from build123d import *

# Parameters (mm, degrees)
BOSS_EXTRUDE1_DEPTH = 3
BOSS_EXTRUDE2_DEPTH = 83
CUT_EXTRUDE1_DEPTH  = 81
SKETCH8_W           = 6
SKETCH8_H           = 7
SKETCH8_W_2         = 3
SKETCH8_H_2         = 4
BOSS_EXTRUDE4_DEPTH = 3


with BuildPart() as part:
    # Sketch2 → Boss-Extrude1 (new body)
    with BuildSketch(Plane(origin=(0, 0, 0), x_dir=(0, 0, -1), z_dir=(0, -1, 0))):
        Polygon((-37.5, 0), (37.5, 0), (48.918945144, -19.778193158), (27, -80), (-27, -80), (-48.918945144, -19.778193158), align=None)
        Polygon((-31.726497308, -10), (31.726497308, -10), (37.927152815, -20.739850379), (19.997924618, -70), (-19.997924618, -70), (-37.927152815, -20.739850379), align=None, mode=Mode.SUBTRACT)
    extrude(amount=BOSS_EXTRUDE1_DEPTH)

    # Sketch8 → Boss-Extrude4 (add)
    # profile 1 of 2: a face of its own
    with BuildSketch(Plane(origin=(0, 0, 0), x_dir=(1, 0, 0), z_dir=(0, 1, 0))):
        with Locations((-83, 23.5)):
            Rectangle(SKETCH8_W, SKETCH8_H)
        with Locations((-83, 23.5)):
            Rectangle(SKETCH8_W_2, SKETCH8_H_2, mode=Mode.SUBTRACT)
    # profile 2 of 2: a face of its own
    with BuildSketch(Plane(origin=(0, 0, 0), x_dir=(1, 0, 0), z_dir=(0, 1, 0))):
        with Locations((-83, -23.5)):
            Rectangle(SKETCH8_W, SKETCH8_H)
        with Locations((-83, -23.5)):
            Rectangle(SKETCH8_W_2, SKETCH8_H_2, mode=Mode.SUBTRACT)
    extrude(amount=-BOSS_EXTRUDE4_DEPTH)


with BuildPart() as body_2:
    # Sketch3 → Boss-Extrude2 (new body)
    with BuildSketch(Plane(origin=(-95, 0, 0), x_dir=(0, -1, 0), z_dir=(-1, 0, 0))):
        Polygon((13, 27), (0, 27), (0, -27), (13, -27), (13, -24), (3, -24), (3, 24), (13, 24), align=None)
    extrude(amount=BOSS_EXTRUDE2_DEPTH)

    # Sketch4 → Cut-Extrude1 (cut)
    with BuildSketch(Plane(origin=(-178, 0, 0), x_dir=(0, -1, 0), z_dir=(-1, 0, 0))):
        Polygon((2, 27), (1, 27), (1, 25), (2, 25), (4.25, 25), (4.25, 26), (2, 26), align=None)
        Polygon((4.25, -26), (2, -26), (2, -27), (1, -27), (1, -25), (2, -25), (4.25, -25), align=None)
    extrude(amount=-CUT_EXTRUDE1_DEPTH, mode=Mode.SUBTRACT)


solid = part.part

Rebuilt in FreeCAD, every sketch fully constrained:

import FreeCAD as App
import Part
import Sketcher
from FreeCAD import Vector
Q = App.Units.Quantity


def add_polygon(sketch, points):
    """Adds a closed chain of lines whose ends are joined by coincident constraints."""
    first, n = sketch.GeometryCount, len(points)
    for a, b in zip(points, points[1:] + points[:1]):
        sketch.addGeometry(Part.LineSegment(App.Vector(*a, 0), App.Vector(*b, 0)), False)
    for i in range(n):
        sketch.addConstraint(Sketcher.Constraint("Coincident", first + i, 2, first + (i + 1) % n, 1))

doc = App.newDocument("Part")
body = doc.addObject("PartDesign::Body", "Body")

# Sketch on XZ plane
sketch1 = body.newObject("Sketcher::SketchObject", "Sketch")
sketch1.AttachmentSupport = (doc.getObject("XZ_Plane"), [""])
sketch1.MapMode = "FlatFace"
add_polygon(sketch1, [(0, -37.5), (0, 37.5), (-19.778193, 48.918945), (-80, 27), (-80, -27), (-19.778193, -48.918945)])  # lines 0-5
add_polygon(sketch1, [(-10, 31.726497), (-10, -31.726497), (-20.73985, -37.927153), (-70, -19.997925), (-70, 19.997925), (-20.73985, 37.927153)])  # lines 6-11
sketch1.addConstraint(Sketcher.Constraint("Vertical", 0))
sketch1.addConstraint(Sketcher.Constraint("Vertical", 3))
sketch1.addConstraint(Sketcher.Constraint("Vertical", 6))
sketch1.addConstraint(Sketcher.Constraint("Vertical", 9))
sketch1.addConstraint(Sketcher.Constraint("Symmetric", 0, 2, 5, 2, -1, 1))
sketch1.addConstraint(Sketcher.Constraint("Symmetric", 1, 2, 4, 2, -1))
sketch1.addConstraint(Sketcher.Constraint("Symmetric", 7, 2, 10, 2, -1))
sketch1.addConstraint(Sketcher.Constraint("Parallel", 5, 7))
sketch1.addConstraint(Sketcher.Constraint("Parallel", 4, 8))
sketch1.addConstraint(Sketcher.Constraint("Parallel", 2, 10))
sketch1.addConstraint(Sketcher.Constraint("Parallel", 1, 11))
sketch1.addConstraint(Sketcher.Constraint("Equal", 2, 4))
sketch1.addConstraint(Sketcher.Constraint("DistanceY", 0, 1, 0, 2, 75.0))
sketch1.addConstraint(Sketcher.Constraint("DistanceY", 3, 2, 3, 1, 54.0))
sketch1.addConstraint(Sketcher.Constraint("Angle", 1, Q("150 deg")))
sketch1.addConstraint(Sketcher.Constraint("Angle", 2, Q("-160 deg")))
sketch1.addConstraint(Sketcher.Constraint("DistanceX", 2, 2, -1, 1, 80.0))
sketch1.addConstraint(Sketcher.Constraint("DistanceX", 6, 2, -1, 1, 10.0))
sketch1.addConstraint(Sketcher.Constraint("DistanceX", 8, 2, -1, 1, 70.0))
sketch1.addConstraint(Sketcher.Constraint("DistanceY", 9, 1, 9, 2, 39.995849))
sketch1.addConstraint(Sketcher.Constraint("Distance", 7, 12.401311))
pad1 = body.newObject("PartDesign::Pad", "Pad")
pad1.Profile = sketch1
pad1.Length = 3

# Sketch on XZ plane
sketch2 = body.newObject("Sketcher::SketchObject", "Sketch001")
sketch2.AttachmentSupport = (doc.getObject("XZ_Plane"), [""])
sketch2.MapMode = "FlatFace"
add_polygon(sketch2, [(-86, -27), (-86, -20), (-80, -20), (-80, -27)])  # lines 0-3
add_polygon(sketch2, [(-81.5, -21.5), (-84.5, -21.5), (-84.5, -25.5), (-81.5, -25.5)])  # lines 4-7
add_polygon(sketch2, [(-86, 20), (-86, 27), (-80, 27), (-80, 20)])  # lines 8-11
add_polygon(sketch2, [(-81.5, 25.5), (-84.5, 25.5), (-84.5, 21.5), (-81.5, 21.5)])  # lines 12-15
sketch2.addConstraint(Sketcher.Constraint("Vertical", 0))
sketch2.addConstraint(Sketcher.Constraint("Horizontal", 1))
sketch2.addConstraint(Sketcher.Constraint("Vertical", 2))
sketch2.addConstraint(Sketcher.Constraint("Horizontal", 3))
sketch2.addConstraint(Sketcher.Constraint("Horizontal", 4))
sketch2.addConstraint(Sketcher.Constraint("Vertical", 5))
sketch2.addConstraint(Sketcher.Constraint("Horizontal", 6))
sketch2.addConstraint(Sketcher.Constraint("Vertical", 7))
sketch2.addConstraint(Sketcher.Constraint("Vertical", 8))
sketch2.addConstraint(Sketcher.Constraint("Horizontal", 9))
sketch2.addConstraint(Sketcher.Constraint("Vertical", 10))
sketch2.addConstraint(Sketcher.Constraint("Horizontal", 11))
sketch2.addConstraint(Sketcher.Constraint("Horizontal", 12))
sketch2.addConstraint(Sketcher.Constraint("Vertical", 13))
sketch2.addConstraint(Sketcher.Constraint("Horizontal", 14))
sketch2.addConstraint(Sketcher.Constraint("Vertical", 15))
sketch2.addConstraint(Sketcher.Constraint("Symmetric", 3, 2, 8, 2, -1))
sketch2.addConstraint(Sketcher.Constraint("Symmetric", 1, 2, 10, 2, -1))
sketch2.addConstraint(Sketcher.Constraint("Symmetric", 5, 2, 12, 2, -1))
sketch2.addConstraint(Sketcher.Constraint("Symmetric", 7, 2, 14, 2, -1))
sketch2.addConstraint(Sketcher.Constraint("DistanceX", 1, 1, 1, 2, 6.0))
sketch2.addConstraint(Sketcher.Constraint("DistanceX", 4, 2, 4, 1, 3.0))
sketch2.addConstraint(Sketcher.Constraint("DistanceY", 0, 1, 0, 2, 7.0))
sketch2.addConstraint(Sketcher.Constraint("DistanceY", 5, 2, 5, 1, 4.0))
sketch2.addConstraint(Sketcher.Constraint("DistanceX", 0, 2, -1, 1, 86.0))
sketch2.addConstraint(Sketcher.Constraint("DistanceY", 0, 2, -1, 1, 20.0))
sketch2.addConstraint(Sketcher.Constraint("DistanceX", 4, 2, -1, 1, 84.5))
sketch2.addConstraint(Sketcher.Constraint("DistanceY", 4, 2, -1, 1, 21.5))
pad2 = body.newObject("PartDesign::Pad", "Pad001")
pad2.Profile = sketch2
pad2.Length = 3
body2 = doc.addObject("PartDesign::Body", "Body001")

# Sketch on YZ plane
sketch3 = body2.newObject("Sketcher::SketchObject", "Sketch002")
sketch3.AttachmentSupport = (doc.getObject("YZ_Plane001"), [""])
sketch3.MapMode = "FlatFace"
sketch3.AttachmentOffset = App.Placement(Vector(0, 0, -95), App.Rotation())
add_polygon(sketch3, [(-13, 27), (0, 27), (0, -27), (-13, -27), (-13, -24), (-3, -24), (-3, 24), (-13, 24)])  # lines 0-7
sketch3.addConstraint(Sketcher.Constraint("Horizontal", 0))
sketch3.addConstraint(Sketcher.Constraint("Vertical", 1))
sketch3.addConstraint(Sketcher.Constraint("Horizontal", 2))
sketch3.addConstraint(Sketcher.Constraint("Vertical", 3))
sketch3.addConstraint(Sketcher.Constraint("Horizontal", 4))
sketch3.addConstraint(Sketcher.Constraint("Vertical", 5))
sketch3.addConstraint(Sketcher.Constraint("Horizontal", 6))
sketch3.addConstraint(Sketcher.Constraint("Vertical", 7))
sketch3.addConstraint(Sketcher.Constraint("Symmetric", 0, 2, 1, 2, -1, 1))
sketch3.addConstraint(Sketcher.Constraint("Symmetric", 3, 2, 6, 2, -1))
sketch3.addConstraint(Sketcher.Constraint("DistanceX", 0, 1, 0, 2, 13.0))
sketch3.addConstraint(Sketcher.Constraint("DistanceX", 4, 1, 4, 2, 10.0))
sketch3.addConstraint(Sketcher.Constraint("DistanceY", 1, 2, 1, 1, 54.0))
sketch3.addConstraint(Sketcher.Constraint("DistanceY", 3, 1, 3, 2, 3.0))
pad3 = body2.newObject("PartDesign::Pad", "Pad002")
pad3.Profile = sketch3
pad3.Length = 83
pad3.Reversed = True

# Sketch on YZ plane
sketch4 = body2.newObject("Sketcher::SketchObject", "Sketch003")
sketch4.AttachmentSupport = (doc.getObject("YZ_Plane001"), [""])
sketch4.MapMode = "FlatFace"
sketch4.AttachmentOffset = App.Placement(Vector(0, 0, -178), App.Rotation())
add_polygon(sketch4, [(-2, 27), (-1, 27), (-1, 25), (-4.25, 25), (-4.25, 26), (-2, 26)])  # lines 0-5
add_polygon(sketch4, [(-2, -26), (-4.25, -26), (-4.25, -25), (-1, -25), (-1, -27), (-2, -27)])  # lines 6-11
sketch4.addConstraint(Sketcher.Constraint("Horizontal", 0))
sketch4.addConstraint(Sketcher.Constraint("Vertical", 1))
sketch4.addConstraint(Sketcher.Constraint("Horizontal", 2))
sketch4.addConstraint(Sketcher.Constraint("Vertical", 3))
sketch4.addConstraint(Sketcher.Constraint("Horizontal", 4))
sketch4.addConstraint(Sketcher.Constraint("Vertical", 5))
sketch4.addConstraint(Sketcher.Constraint("Horizontal", 6))
sketch4.addConstraint(Sketcher.Constraint("Vertical", 7))
sketch4.addConstraint(Sketcher.Constraint("Horizontal", 8))
sketch4.addConstraint(Sketcher.Constraint("Vertical", 9))
sketch4.addConstraint(Sketcher.Constraint("Horizontal", 10))
sketch4.addConstraint(Sketcher.Constraint("Vertical", 11))
sketch4.addConstraint(Sketcher.Constraint("Symmetric", 3, 2, 6, 2, -1))
sketch4.addConstraint(Sketcher.Constraint("Symmetric", 1, 2, 8, 2, -1))
sketch4.addConstraint(Sketcher.Constraint("Symmetric", 5, 2, 10, 2, -1))
sketch4.addConstraint(Sketcher.Constraint("Equal", 10, 3))
sketch4.addConstraint(Sketcher.Constraint("Equal", 3, 5))
sketch4.addConstraint(Sketcher.Constraint("DistanceX", 0, 1, 0, 2, 1.0))
sketch4.addConstraint(Sketcher.Constraint("DistanceX", 0, 2, -1, 1, 1.0))
sketch4.addConstraint(Sketcher.Constraint("DistanceY", -1, 1, 0, 2, 27.0))
sketch4.addConstraint(Sketcher.Constraint("DistanceX", 2, 2, 2, 1, 3.25))
pocket1 = body2.newObject("PartDesign::Pocket", "Pocket")
pocket1.Profile = sketch4
pocket1.Length = 81
pocket1.Reversed = True
body2.Visibility = False

doc.recompute()
